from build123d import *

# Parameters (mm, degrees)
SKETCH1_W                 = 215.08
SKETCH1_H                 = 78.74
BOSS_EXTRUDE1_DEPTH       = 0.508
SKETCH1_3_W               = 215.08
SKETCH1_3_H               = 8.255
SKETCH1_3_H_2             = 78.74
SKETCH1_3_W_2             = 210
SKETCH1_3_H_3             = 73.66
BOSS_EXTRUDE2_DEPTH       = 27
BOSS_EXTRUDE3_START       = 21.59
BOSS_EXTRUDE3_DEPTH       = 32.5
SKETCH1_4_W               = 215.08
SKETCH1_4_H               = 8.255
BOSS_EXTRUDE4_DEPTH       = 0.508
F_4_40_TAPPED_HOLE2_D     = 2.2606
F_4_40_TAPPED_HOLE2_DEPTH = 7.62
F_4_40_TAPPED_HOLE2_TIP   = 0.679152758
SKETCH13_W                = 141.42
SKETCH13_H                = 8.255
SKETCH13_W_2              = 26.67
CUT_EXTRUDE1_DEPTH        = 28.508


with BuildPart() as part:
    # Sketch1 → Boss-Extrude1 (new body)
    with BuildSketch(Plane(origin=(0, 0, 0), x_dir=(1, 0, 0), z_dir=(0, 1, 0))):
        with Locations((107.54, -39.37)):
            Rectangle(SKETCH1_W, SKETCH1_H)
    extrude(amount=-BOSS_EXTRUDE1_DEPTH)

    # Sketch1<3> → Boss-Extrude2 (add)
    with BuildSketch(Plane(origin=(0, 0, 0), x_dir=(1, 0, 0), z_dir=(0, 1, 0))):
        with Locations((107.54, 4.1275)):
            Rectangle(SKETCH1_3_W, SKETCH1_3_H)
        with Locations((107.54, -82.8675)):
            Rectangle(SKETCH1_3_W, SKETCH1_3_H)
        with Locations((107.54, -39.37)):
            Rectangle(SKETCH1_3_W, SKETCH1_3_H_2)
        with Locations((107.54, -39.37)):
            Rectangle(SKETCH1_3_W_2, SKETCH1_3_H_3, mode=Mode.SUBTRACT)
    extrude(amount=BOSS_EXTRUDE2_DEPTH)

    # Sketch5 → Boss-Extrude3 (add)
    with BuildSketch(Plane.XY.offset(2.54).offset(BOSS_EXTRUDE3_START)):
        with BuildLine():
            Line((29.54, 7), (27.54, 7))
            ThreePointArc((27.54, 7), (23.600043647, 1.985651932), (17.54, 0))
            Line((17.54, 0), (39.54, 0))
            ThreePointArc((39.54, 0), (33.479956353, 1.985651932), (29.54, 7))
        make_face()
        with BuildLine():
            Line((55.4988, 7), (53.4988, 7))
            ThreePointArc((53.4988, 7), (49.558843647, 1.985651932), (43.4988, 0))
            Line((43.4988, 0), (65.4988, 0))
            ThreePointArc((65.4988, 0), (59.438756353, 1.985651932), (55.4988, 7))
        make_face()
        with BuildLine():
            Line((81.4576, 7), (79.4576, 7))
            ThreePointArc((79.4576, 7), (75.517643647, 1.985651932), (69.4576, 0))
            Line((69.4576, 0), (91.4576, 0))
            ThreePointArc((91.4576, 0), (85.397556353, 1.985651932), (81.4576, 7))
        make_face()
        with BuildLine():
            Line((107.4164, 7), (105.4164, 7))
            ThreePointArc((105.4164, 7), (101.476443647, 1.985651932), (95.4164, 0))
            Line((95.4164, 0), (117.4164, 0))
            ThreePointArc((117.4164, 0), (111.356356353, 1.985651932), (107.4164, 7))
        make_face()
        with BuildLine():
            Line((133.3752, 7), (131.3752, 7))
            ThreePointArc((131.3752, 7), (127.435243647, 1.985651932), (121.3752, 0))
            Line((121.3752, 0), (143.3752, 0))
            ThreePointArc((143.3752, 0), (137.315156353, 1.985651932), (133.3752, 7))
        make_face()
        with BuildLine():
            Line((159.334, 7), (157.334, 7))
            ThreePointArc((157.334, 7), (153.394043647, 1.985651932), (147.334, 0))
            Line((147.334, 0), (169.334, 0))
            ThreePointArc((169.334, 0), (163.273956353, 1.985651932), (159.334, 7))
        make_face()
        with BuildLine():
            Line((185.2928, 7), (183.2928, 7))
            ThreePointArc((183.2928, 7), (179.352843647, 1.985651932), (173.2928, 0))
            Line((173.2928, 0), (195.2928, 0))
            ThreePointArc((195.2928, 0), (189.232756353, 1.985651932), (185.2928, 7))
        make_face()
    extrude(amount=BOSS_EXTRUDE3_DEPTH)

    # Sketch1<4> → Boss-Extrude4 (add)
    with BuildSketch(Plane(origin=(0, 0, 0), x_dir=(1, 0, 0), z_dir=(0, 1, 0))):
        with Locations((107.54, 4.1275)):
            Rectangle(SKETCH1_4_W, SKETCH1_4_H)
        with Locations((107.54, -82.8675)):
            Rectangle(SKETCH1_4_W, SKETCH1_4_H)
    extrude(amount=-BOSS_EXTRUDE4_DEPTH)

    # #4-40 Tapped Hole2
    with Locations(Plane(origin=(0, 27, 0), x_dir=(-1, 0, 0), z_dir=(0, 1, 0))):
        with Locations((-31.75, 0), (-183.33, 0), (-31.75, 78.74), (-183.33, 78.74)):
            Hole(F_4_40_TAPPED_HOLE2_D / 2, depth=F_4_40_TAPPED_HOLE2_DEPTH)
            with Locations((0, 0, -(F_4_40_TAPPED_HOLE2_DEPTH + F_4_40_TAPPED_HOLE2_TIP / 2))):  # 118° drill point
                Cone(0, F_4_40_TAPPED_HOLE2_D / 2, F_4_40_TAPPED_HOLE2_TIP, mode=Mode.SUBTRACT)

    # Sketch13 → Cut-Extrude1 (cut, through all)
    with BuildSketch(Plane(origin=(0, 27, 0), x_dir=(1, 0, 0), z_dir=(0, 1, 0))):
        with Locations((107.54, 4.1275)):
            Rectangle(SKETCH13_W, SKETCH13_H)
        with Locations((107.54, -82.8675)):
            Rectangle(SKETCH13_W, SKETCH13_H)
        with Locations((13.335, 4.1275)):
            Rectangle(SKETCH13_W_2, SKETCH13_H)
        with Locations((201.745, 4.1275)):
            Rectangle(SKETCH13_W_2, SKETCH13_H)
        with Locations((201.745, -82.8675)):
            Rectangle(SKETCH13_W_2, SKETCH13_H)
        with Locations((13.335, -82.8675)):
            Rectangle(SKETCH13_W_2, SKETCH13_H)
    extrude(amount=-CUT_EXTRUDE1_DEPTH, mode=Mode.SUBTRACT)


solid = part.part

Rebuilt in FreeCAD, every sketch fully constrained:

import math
import FreeCAD as App
import Part
import Sketcher

V = App.Vector
Q = App.Units.Quantity

doc = App.newDocument("Part")
body = doc.addObject("PartDesign::Body", "Body")

sketch1 = body.newObject("Sketcher::SketchObject", "Sketch")
sketch1.AttachmentSupport = (doc.getObject("XZ_Plane"), [""])
sketch1.MapMode = "FlatFace"
sketch1.addGeometry([
    Part.LineSegment(V(0, 0, 0), V(0, 78.74, 0)),
    Part.LineSegment(V(0, 78.74, 0), V(215.08, 78.74, 0)),
    Part.LineSegment(V(215.08, 78.74, 0), V(215.08, 0, 0)),
    Part.LineSegment(V(215.08, 0, 0), V(0, 0, 0)),
], False)
sketch1.addConstraint([
    Sketcher.Constraint("Coincident", 0, 2, 1, 1),
    Sketcher.Constraint("Coincident", 1, 2, 2, 1),
    Sketcher.Constraint("Coincident", 2, 2, 3, 1),
    Sketcher.Constraint("Coincident", 3, 2, 0, 1),
    Sketcher.Constraint("Vertical", 0),
    Sketcher.Constraint("Horizontal", 1),
    Sketcher.Constraint("Vertical", 2),
    Sketcher.Constraint("Horizontal", 3),
    Sketcher.Constraint("Coincident", 3, 2, -1, 1),
    Sketcher.Constraint("DistanceY", 0, 1, 0, 2, Q("3.1 in")),
    Sketcher.Constraint("DistanceX", 1, 1, 1, 2, Q("215.08 mm")),
])
pad1 = body.newObject("PartDesign::Pad", "Pad")
pad1.Profile = sketch1
pad1.Length = Q("0.02 in")

sketch2 = body.newObject("Sketcher::SketchObject", "Sketch001")
sketch2.AttachmentSupport = (doc.getObject("XZ_Plane"), [""])
sketch2.MapMode = "FlatFace"
sketch2.addGeometry([
    Part.LineSegment(V(0, -8.255, 0), V(0, 86.995, 0)),
    Part.LineSegment(V(0, 86.995, 0), V(215.08, 86.995, 0)),
    Part.LineSegment(V(215.08, 86.995, 0), V(215.08, -8.255, 0)),
    Part.LineSegment(V(215.08, -8.255, 0), V(0, -8.255, 0)),
    Part.LineSegment(V(212.54, 76.2, 0), V(2.54, 76.2, 0)),
    Part.LineSegment(V(2.54, 76.2, 0), V(2.54, 2.54, 0)),
    Part.LineSegment(V(2.54, 2.54, 0), V(212.54, 2.54, 0)),
    Part.LineSegment(V(212.54, 2.54, 0), V(212.54, 76.2, 0)),
], False)
sketch2.addConstraint([
    Sketcher.Constraint("Coincident", 0, 2, 1, 1),
    Sketcher.Constraint("Coincident", 1, 2, 2, 1),
    Sketcher.Constraint("Coincident", 2, 2, 3, 1),
    Sketcher.Constraint("Coincident", 3, 2, 0, 1),
    Sketcher.Constraint("Coincident", 4, 2, 5, 1),
    Sketcher.Constraint("Coincident", 5, 2, 6, 1),
    Sketcher.Constraint("Coincident", 6, 2, 7, 1),
    Sketcher.Constraint("Coincident", 7, 2, 4, 1),
    Sketcher.Constraint("Vertical", 0),
    Sketcher.Constraint("Horizontal", 1),
    Sketcher.Constraint("Vertical", 2),
    Sketcher.Constraint("Horizontal", 3),
    Sketcher.Constraint("Horizontal", 4),
    Sketcher.Constraint("Vertical", 5),
    Sketcher.Constraint("Horizontal", 6),
    Sketcher.Constraint("Vertical", 7),
    Sketcher.Constraint("PointOnObject", 0, 2, -2),
    Sketcher.Constraint("DistanceY", 5, 2, 5, 1, Q("2.9 in")),
    Sketcher.Constraint("DistanceY", -1, 1, 4, 2, Q("3 in")),
    Sketcher.Constraint("DistanceY", 0, 1, 0, 2, Q("3.75 in")),
    Sketcher.Constraint("DistanceX", -1, 1, 4, 2, Q("0.1 in")),
    Sketcher.Constraint("DistanceX", 6, 2, 2, 2, Q("0.1 in")),
    Sketcher.Constraint("DistanceY", -1, 1, 0, 2, Q("3.425 in")),
    Sketcher.Constraint("DistanceX", 1, 1, 1, 2, Q("215.08 mm")),
])
pad2 = body.newObject("PartDesign::Pad", "Pad001")
pad2.Profile = sketch2
pad2.Length = 27
pad2.Reversed = True

sketch3 = body.newObject("Sketcher::SketchObject", "Sketch002")
sketch3.AttachmentSupport = (doc.getObject("XY_Plane"), [""])
sketch3.MapMode = "FlatFace"
sketch3.AttachmentOffset = App.Placement(V(0, 0, 0.95 * 25.4), App.Rotation())
sketch3.addGeometry([
    Part.LineSegment(V(29.54, 7, 0), V(27.54, 7, 0)),
    Part.ArcOfCircle(Part.Circle(V(17.291958, 10.997203, 0), V(0, 0, 1), 11), math.radians(-88.707912), math.radians(-21.308048)),
    Part.LineSegment(V(17.54, 0, 0), V(39.54, 0, 0)),
    Part.ArcOfCircle(Part.Circle(V(39.788042, 10.997203, 0), V(0, 0, 1), 11), math.radians(-158.691952), math.radians(-91.292088)),
    Part.LineSegment(V(55.4988, 7, 0), V(53.4988, 7, 0)),
    Part.ArcOfCircle(Part.Circle(V(43.250758, 10.997203, 0), V(0, 0, 1), 11), math.radians(-88.707912), math.radians(-21.308048)),
    Part.LineSegment(V(43.4988, 0, 0), V(65.4988, 0, 0)),
    Part.ArcOfCircle(Part.Circle(V(65.746842, 10.997203, 0), V(0, 0, 1), 11), math.radians(-158.691952), math.radians(-91.292088)),
    Part.LineSegment(V(81.4576, 7, 0), V(79.4576, 7, 0)),
    Part.ArcOfCircle(Part.Circle(V(69.209558, 10.997203, 0), V(0, 0, 1), 11), math.radians(-88.707912), math.radians(-21.308048)),
    Part.LineSegment(V(69.4576, 0, 0), V(91.4576, 0, 0)),
    Part.ArcOfCircle(Part.Circle(V(91.705642, 10.997203, 0), V(0, 0, 1), 11), math.radians(-158.691952), math.radians(-91.292088)),
    Part.LineSegment(V(107.4164, 7, 0), V(105.4164, 7, 0)),
    Part.ArcOfCircle(Part.Circle(V(95.168358, 10.997203, 0), V(0, 0, 1), 11), math.radians(-88.707912), math.radians(-21.308048)),
    Part.LineSegment(V(95.4164, 0, 0), V(117.4164, 0, 0)),
    Part.ArcOfCircle(Part.Circle(V(117.664442, 10.997203, 0), V(0, 0, 1), 11), math.radians(-158.691952), math.radians(-91.292088)),
    Part.LineSegment(V(133.3752, 7, 0), V(131.3752, 7, 0)),
    Part.ArcOfCircle(Part.Circle(V(121.127158, 10.997203, 0), V(0, 0, 1), 11), math.radians(-88.707912), math.radians(-21.308048)),
    Part.LineSegment(V(121.3752, 0, 0), V(143.3752, 0, 0)),
    Part.ArcOfCircle(Part.Circle(V(143.623242, 10.997203, 0), V(0, 0, 1), 11), math.radians(-158.691952), math.radians(-91.292088)),
    Part.LineSegment(V(159.334, 7, 0), V(157.334, 7, 0)),
    Part.ArcOfCircle(Part.Circle(V(147.085958, 10.997203, 0), V(0, 0, 1), 11), math.radians(-88.707912), math.radians(-21.308048)),
    Part.LineSegment(V(147.334, 0, 0), V(169.334, 0, 0)),
    Part.ArcOfCircle(Part.Circle(V(169.582042, 10.997203, 0), V(0, 0, 1), 11), math.radians(-158.691952), math.radians(-91.292088)),
    Part.LineSegment(V(185.2928, 7, 0), V(183.2928, 7, 0)),
    Part.ArcOfCircle(Part.Circle(V(173.044758, 10.997203, 0), V(0, 0, 1), 11), math.radians(-88.707912), math.radians(-21.308048)),
    Part.LineSegment(V(173.2928, 0, 0), V(195.2928, 0, 0)),
    Part.ArcOfCircle(Part.Circle(V(195.540842, 10.997203, 0), V(0, 0, 1), 11), math.radians(-158.691952), math.radians(-91.292088)),
], False)
sketch3.addConstraint([
    Sketcher.Constraint("Coincident", 0, 2, 1, 2),
    Sketcher.Constraint("Coincident", 1, 1, 2, 1),
    Sketcher.Constraint("Coincident", 2, 2, 3, 2),
    Sketcher.Constraint("Coincident", 3, 1, 0, 1),
    Sketcher.Constraint("Coincident", 4, 2, 5, 2),
    Sketcher.Constraint("Coincident", 5, 1, 6, 1),
    Sketcher.Constraint("Coincident", 6, 2, 7, 2),
    Sketcher.Constraint("Coincident", 7, 1, 4, 1),
    Sketcher.Constraint("Coincident", 8, 2, 9, 2),
    Sketcher.Constraint("Coincident", 9, 1, 10, 1),
    Sketcher.Constraint("Coincident", 10, 2, 11, 2),
    Sketcher.Constraint("Coincident", 11, 1, 8, 1),
    Sketcher.Constraint("Coincident", 12, 2, 13, 2),
    Sketcher.Constraint("Coincident", 13, 1, 14, 1),
    Sketcher.Constraint("Coincident", 14, 2, 15, 2),
    Sketcher.Constraint("Coincident", 15, 1, 12, 1),
    Sketcher.Constraint("Coincident", 16, 2, 17, 2),
    Sketcher.Constraint("Coincident", 17, 1, 18, 1),
    Sketcher.Constraint("Coincident", 18, 2, 19, 2),
    Sketcher.Constraint("Coincident", 19, 1, 16, 1),
    Sketcher.Constraint("Coincident", 20, 2, 21, 2),
    Sketcher.Constraint("Coincident", 21, 1, 22, 1),
    Sketcher.Constraint("Coincident", 22, 2, 23, 2),
    Sketcher.Constraint("Coincident", 23, 1, 20, 1),
    Sketcher.Constraint("Coincident", 24, 2, 25, 2),
    Sketcher.Constraint("Coincident", 25, 1, 26, 1),
    Sketcher.Constraint("Coincident", 26, 2, 27, 2),
    Sketcher.Constraint("Coincident", 27, 1, 24, 1),
    Sketcher.Constraint("Horizontal", 0),
    Sketcher.Constraint("Horizontal", 2),
    Sketcher.Constraint("Horizontal", 4),
    Sketcher.Constraint("Horizontal", 6),
    Sketcher.Constraint("Horizontal", 8),
    Sketcher.Constraint("Horizontal", 10),
    Sketcher.Constraint("Horizontal", 12),
    Sketcher.Constraint("Horizontal", 14),
    Sketcher.Constraint("Horizontal", 16),
    Sketcher.Constraint("Horizontal", 18),
    Sketcher.Constraint("Horizontal", 20),
    Sketcher.Constraint("Horizontal", 22),
    Sketcher.Constraint("Horizontal", 24),
    Sketcher.Constraint("Horizontal", 26),
    Sketcher.Constraint("Equal", 1, 3),
    Sketcher.Constraint("Equal", 3, 5),
    Sketcher.Constraint("Equal", 5, 7),
    Sketcher.Constraint("Equal", 7, 9),
    Sketcher.Constraint("Equal", 9, 11),
    Sketcher.Constraint("Equal", 11, 13),
    Sketcher.Constraint("Equal", 13, 15),
    Sketcher.Constraint("Equal", 15, 17),
    Sketcher.Constraint("Equal", 17, 19),
    Sketcher.Constraint("Equal", 19, 21),
    Sketcher.Constraint("Equal", 21, 23),
    Sketcher.Constraint("Equal", 23, 25),
    Sketcher.Constraint("Equal", 25, 27),
    Sketcher.Constraint("PointOnObject", 1, 1, -1),
    Sketcher.Constraint("PointOnObject", 5, 1, -1),
    Sketcher.Constraint("PointOnObject", 9, 1, -1),
    Sketcher.Constraint("PointOnObject", 13, 1, -1),
    Sketcher.Constraint("PointOnObject", 17, 1, -1),
    Sketcher.Constraint("PointOnObject", 21, 1, -1),
    Sketcher.Constraint("PointOnObject", 25, 1, -1),
    Sketcher.Constraint("Horizontal", 1, 3, 3, 3),
    Sketcher.Constraint("Horizontal", 3, 3, 5, 3),
    Sketcher.Constraint("Horizontal", 5, 3, 7, 3),
    Sketcher.Constraint("Horizontal", 7, 3, 9, 3),
    Sketcher.Constraint("Horizontal", 9, 3, 11, 3),
    Sketcher.Constraint("Horizontal", 11, 3, 13, 3),
    Sketcher.Constraint("Horizontal", 13, 3, 15, 3),
    Sketcher.Constraint("Horizontal", 15, 3, 17, 3),
    Sketcher.Constraint("Horizontal", 17, 3, 19, 3),
    Sketcher.Constraint("Horizontal", 19, 3, 21, 3),
    Sketcher.Constraint("Horizontal", 21, 3, 23, 3),
    Sketcher.Constraint("Horizontal", 23, 3, 25, 3),
    Sketcher.Constraint("Horizontal", 25, 3, 27, 3),
    Sketcher.Constraint("Horizontal", 3, 1, 4, 2),
    Sketcher.Constraint("Horizontal", 7, 1, 8, 2),
    Sketcher.Constraint("Horizontal", 11, 1, 12, 2),
    Sketcher.Constraint("Horizontal", 15, 1, 16, 2),
    Sketcher.Constraint("Horizontal", 19, 1, 20, 2),
    Sketcher.Constraint("Horizontal", 23, 1, 24, 2),
    Sketcher.Constraint("Equal", 0, 4),
    Sketcher.Constraint("Equal", 4, 8),
    Sketcher.Constraint("Equal", 8, 12),
    Sketcher.Constraint("Equal", 12, 16),
    Sketcher.Constraint("Equal", 16, 20),
    Sketcher.Constraint("Equal", 20, 24),
    Sketcher.Constraint("Radius", 1, Q("11 mm")),
    Sketcher.Constraint("DistanceX", 1, 3, 5, 3, Q("1.022 in")),
    Sketcher.Constraint("DistanceX", 5, 3, 9, 3, Q("1.022 in")),
    Sketcher.Constraint("DistanceX", 9, 3, 13, 3, Q("1.022 in")),
    Sketcher.Constraint("DistanceX", 13, 3, 17, 3, Q("1.022 in")),
    Sketcher.Constraint("DistanceX", 17, 3, 21, 3, Q("1.022 in")),
    Sketcher.Constraint("DistanceX", 21, 3, 25, 3, Q("1.022 in")),
    Sketcher.Constraint("DistanceX", 0, 2, 0, 1, Q("2 mm")),
    Sketcher.Constraint("DistanceX", 2, 1, 2, 2, Q("22 mm")),
    Sketcher.Constraint("DistanceX", -1, 1, 0, 2, Q("27.54 mm")),
    Sketcher.Constraint("DistanceY", -1, 1, 0, 2, Q("7 mm")),
])
pad3 = body.newObject("PartDesign::Pad", "Pad002")
pad3.Profile = sketch3
pad3.Length = 32.5

sketch4 = body.newObject("Sketcher::SketchObject", "Sketch003")
sketch4.AttachmentSupport = (doc.getObject("XZ_Plane"), [""])
sketch4.MapMode = "FlatFace"
sketch4.addGeometry([
    Part.LineSegment(V(0, -8.255, 0), V(0, 0, 0)),
    Part.LineSegment(V(0, 0, 0), V(215.08, 0, 0)),
    Part.LineSegment(V(215.08, 0, 0), V(215.08, -8.255, 0)),
    Part.LineSegment(V(215.08, -8.255, 0), V(0, -8.255, 0)),
    Part.LineSegment(V(0, 78.74, 0), V(0, 86.995, 0)),
    Part.LineSegment(V(0, 86.995, 0), V(215.08, 86.995, 0)),
    Part.LineSegment(V(215.08, 86.995, 0), V(215.08, 78.74, 0)),
    Part.LineSegment(V(215.08, 78.74, 0), V(0, 78.74, 0)),
], False)
sketch4.addConstraint([
    Sketcher.Constraint("Coincident", 0, 2, 1, 1),
    Sketcher.Constraint("Coincident", 1, 2, 2, 1),
    Sketcher.Constraint("Coincident", 2, 2, 3, 1),
    Sketcher.Constraint("Coincident", 3, 2, 0, 1),
    Sketcher.Constraint("Coincident", 4, 2, 5, 1),
    Sketcher.Constraint("Coincident", 5, 2, 6, 1),
    Sketcher.Constraint("Coincident", 6, 2, 7, 1),
    Sketcher.Constraint("Coincident", 7, 2, 4, 1),
    Sketcher.Constraint("Vertical", 0),
    Sketcher.Constraint("Horizontal", 1),
    Sketcher.Constraint("Vertical", 2),
    Sketcher.Constraint("Horizontal", 3),
    Sketcher.Constraint("Vertical", 4),
    Sketcher.Constraint("Horizontal", 5),
    Sketcher.Constraint("Vertical", 6),
    Sketcher.Constraint("Horizontal", 7),
    Sketcher.Constraint("Coincident", 0, 2, -1, 1),
    Sketcher.Constraint("PointOnObject", 4, 2, -2),
    Sketcher.Constraint("Vertical", 2, 2, 5, 2),
    Sketcher.Constraint("Equal", 2, 4),
    Sketcher.Constraint("DistanceY", -1, 1, 6, 2, Q("3.1 in")),
    Sketcher.Constraint("DistanceY", 0, 1, 0, 2, Q("0.325 in")),
    Sketcher.Constraint("DistanceX", 1, 1, 1, 2, Q("215.08 mm")),
])
pad4 = body.newObject("PartDesign::Pad", "Pad003")
pad4.Profile = sketch4
pad4.Length = Q("0.02 in")

sketch5 = body.newObject("Sketcher::SketchObject", "Sketch004")
sketch5.AttachmentSupport = (doc.getObject("XZ_Plane"), [""])
sketch5.MapMode = "FlatFace"
sketch5.AttachmentOffset = App.Placement(V(0, 0, -27), App.Rotation())
sketch5.addGeometry([
    Part.Circle(V(31.75, 0, 0), V(0, 0, 1), 1.1303),
    Part.Circle(V(183.33, 0, 0), V(0, 0, 1), 1.1303),
    Part.Circle(V(31.75, 78.74, 0), V(0, 0, 1), 1.1303),
    Part.Circle(V(183.33, 78.74, 0), V(0, 0, 1), 1.1303),
], False)
sketch5.addConstraint([
    Sketcher.Constraint("Equal", 0, 1),
    Sketcher.Constraint("Equal", 1, 2),
    Sketcher.Constraint("Equal", 2, 3),
    Sketcher.Constraint("PointOnObject", 0, 3, -1),
    Sketcher.Constraint("PointOnObject", 1, 3, -1),
    Sketcher.Constraint("Horizontal", 2, 3, 3, 3),
    Sketcher.Constraint("Vertical", 0, 3, 2, 3),
    Sketcher.Constraint("Vertical", 1, 3, 3, 3),
    Sketcher.Constraint("Diameter", 0, Q("0.089 in")),
    Sketcher.Constraint("DistanceY", -1, 1, 2, 3, Q("3.1 in")),
    Sketcher.Constraint("DistanceX", -1, 1, 0, 3, Q("1.25 in")),
    Sketcher.Constraint("DistanceX", -1, 1, 1, 3, Q("183.33 mm")),
])
doc.recompute()
hole = body.newObject("PartDesign::Hole", "Hole")
hole.Profile = sketch5
hole.ThreadType = "None"
hole.Diameter = Q("0.089 in")
hole.DepthType = "Dimension"
hole.Depth = Q("0.3 in")
hole.DrillPoint = "Angled"
hole.DrillPointAngle = 118
hole.Reversed = True

sketch6 = body.newObject("Sketcher::SketchObject", "Sketch005")
sketch6.AttachmentSupport = (doc.getObject("XZ_Plane"), [""])
sketch6.MapMode = "FlatFace"
sketch6.AttachmentOffset = App.Placement(V(0, 0, -27), App.Rotation())
sketch6.addGeometry([
    Part.LineSegment(V(36.83, -8.255, 0), V(36.83, 0, 0)),
    Part.LineSegment(V(36.83, 0, 0), V(178.25, 0, 0)),
    Part.LineSegment(V(178.25, 0, 0), V(178.25, -8.255, 0)),
    Part.LineSegment(V(178.25, -8.255, 0), V(36.83, -8.255, 0)),
    Part.LineSegment(V(36.83, 78.74, 0), V(36.83, 86.995, 0)),
    Part.LineSegment(V(36.83, 86.995, 0), V(178.25, 86.995, 0)),
    Part.LineSegment(V(178.25, 86.995, 0), V(178.25, 78.74, 0)),
    Part.LineSegment(V(178.25, 78.74, 0), V(36.83, 78.74, 0)),
    Part.LineSegment(V(0, -8.255, 0), V(0, 0, 0)),
    Part.LineSegment(V(0, 0, 0), V(26.67, 0, 0)),
    Part.LineSegment(V(26.67, 0, 0), V(26.67, -8.255, 0)),
    Part.LineSegment(V(26.67, -8.255, 0), V(0, -8.255, 0)),
    Part.LineSegment(V(188.41, -8.255, 0), V(188.41, 0, 0)),
    Part.LineSegment(V(188.41, 0, 0), V(215.08, 0, 0)),
    Part.LineSegment(V(215.08, 0, 0), V(215.08, -8.255, 0)),
    Part.LineSegment(V(215.08, -8.255, 0), V(188.41, -8.255, 0)),
    Part.LineSegment(V(188.41, 78.74, 0), V(188.41, 86.995, 0)),
    Part.LineSegment(V(188.41, 86.995, 0), V(215.08, 86.995, 0)),
    Part.LineSegment(V(215.08, 86.995, 0), V(215.08, 78.74, 0)),
    Part.LineSegment(V(215.08, 78.74, 0), V(188.41, 78.74, 0)),
    Part.LineSegment(V(0, 78.74, 0), V(0, 86.995, 0)),
    Part.LineSegment(V(0, 86.995, 0), V(26.67, 86.995, 0)),
    Part.LineSegment(V(26.67, 86.995, 0), V(26.67, 78.74, 0)),
    Part.LineSegment(V(26.67, 78.74, 0), V(0, 78.74, 0)),
], False)
sketch6.addConstraint([
    Sketcher.Constraint("Coincident", 0, 2, 1, 1),
    Sketcher.Constraint("Coincident", 1, 2, 2, 1),
    Sketcher.Constraint("Coincident", 2, 2, 3, 1),
    Sketcher.Constraint("Coincident", 3, 2, 0, 1),
    Sketcher.Constraint("Coincident", 4, 2, 5, 1),
    Sketcher.Constraint("Coincident", 5, 2, 6, 1),
    Sketcher.Constraint("Coincident", 6, 2, 7, 1),
    Sketcher.Constraint("Coincident", 7, 2, 4, 1),
    Sketcher.Constraint("Coincident", 8, 2, 9, 1),
    Sketcher.Constraint("Coincident", 9, 2, 10, 1),
    Sketcher.Constraint("Coincident", 10, 2, 11, 1),
    Sketcher.Constraint("Coincident", 11, 2, 8, 1),
    Sketcher.Constraint("Coincident", 12, 2, 13, 1),
    Sketcher.Constraint("Coincident", 13, 2, 14, 1),
    Sketcher.Constraint("Coincident", 14, 2, 15, 1),
    Sketcher.Constraint("Coincident", 15, 2, 12, 1),
    Sketcher.Constraint("Coincident", 16, 2, 17, 1),
    Sketcher.Constraint("Coincident", 17, 2, 18, 1),
    Sketcher.Constraint("Coincident", 18, 2, 19, 1),
    Sketcher.Constraint("Coincident", 19, 2, 16, 1),
    Sketcher.Constraint("Coincident", 20, 2, 21, 1),
    Sketcher.Constraint("Coincident", 21, 2, 22, 1),
    Sketcher.Constraint("Coincident", 22, 2, 23, 1),
    Sketcher.Constraint("Coincident", 23, 2, 20, 1),
    Sketcher.Constraint("Vertical", 0),
    Sketcher.Constraint("Horizontal", 1),
    Sketcher.Constraint("Vertical", 2),
    Sketcher.Constraint("Horizontal", 3),
    Sketcher.Constraint("Vertical", 4),
    Sketcher.Constraint("Horizontal", 5),
    Sketcher.Constraint("Vertical", 6),
    Sketcher.Constraint("Horizontal", 7),
    Sketcher.Constraint("Vertical", 8),
    Sketcher.Constraint("Horizontal", 9),
    Sketcher.Constraint("Vertical", 10),
    Sketcher.Constraint("Horizontal", 11),
    Sketcher.Constraint("Vertical", 12),
    Sketcher.Constraint("Horizontal", 13),
    Sketcher.Constraint("Vertical", 14),
    Sketcher.Constraint("Horizontal", 15),
    Sketcher.Constraint("Vertical", 16),
    Sketcher.Constraint("Horizontal", 17),
    Sketcher.Constraint("Vertical", 18),
    Sketcher.Constraint("Horizontal", 19),
    Sketcher.Constraint("Vertical", 20),
    Sketcher.Constraint("Horizontal", 21),
    Sketcher.Constraint("Vertical", 22),
    Sketcher.Constraint("Horizontal", 23),
    Sketcher.Constraint("Coincident", 8, 2, -1, 1),
    Sketcher.Constraint("PointOnObject", 0, 2, -1),
    Sketcher.Constraint("PointOnObject", 12, 2, -1),
    Sketcher.Constraint("PointOnObject", 20, 2, -2),
    Sketcher.Constraint("Horizontal", 3, 2, 10, 2),
    Sketcher.Constraint("Horizontal", 11, 2, 14, 2),
    Sketcher.Constraint("Horizontal", 5, 2, 16, 2),
    Sketcher.Constraint("Horizontal", 7, 2, 18, 2),
    Sketcher.Constraint("Horizontal", 17, 2, 20, 2),
    Sketcher.Constraint("Horizontal", 19, 2, 22, 2),
    Sketcher.Constraint("Vertical", 3, 2, 4, 2),
    Sketcher.Constraint("Vertical", 2, 2, 5, 2),
    Sketcher.Constraint("Vertical", 15, 2, 16, 2),
    Sketcher.Constraint("Vertical", 14, 2, 17, 2),
    Sketcher.Constraint("Vertical", 10, 2, 21, 2),
    Sketcher.Constraint("Equal", 11, 13),
    Sketcher.Constraint("Equal", 2, 4),
    Sketcher.Constraint("DistanceX", 9, 1, 9, 2, Q("1.05 in")),
    Sketcher.Constraint("DistanceY", -1, 1, 6, 2, Q("3.1 in")),
    Sketcher.Constraint("DistanceX", 9, 2, 0, 2, Q("0.4 in")),
    Sketcher.Constraint("DistanceX", 1, 2, 12, 2, Q("0.4 in")),
    Sketcher.Constraint("DistanceY", 0, 1, 0, 2, Q("0.325 in")),
    Sketcher.Constraint("DistanceX", 1, 1, 1, 2, Q("141.42 mm")),
])
pocket1 = body.newObject("PartDesign::Pocket", "Pocket")
pocket1.Profile = sketch6
pocket1.Type = "ThroughAll"
pocket1.Reversed = True

doc.recompute()
